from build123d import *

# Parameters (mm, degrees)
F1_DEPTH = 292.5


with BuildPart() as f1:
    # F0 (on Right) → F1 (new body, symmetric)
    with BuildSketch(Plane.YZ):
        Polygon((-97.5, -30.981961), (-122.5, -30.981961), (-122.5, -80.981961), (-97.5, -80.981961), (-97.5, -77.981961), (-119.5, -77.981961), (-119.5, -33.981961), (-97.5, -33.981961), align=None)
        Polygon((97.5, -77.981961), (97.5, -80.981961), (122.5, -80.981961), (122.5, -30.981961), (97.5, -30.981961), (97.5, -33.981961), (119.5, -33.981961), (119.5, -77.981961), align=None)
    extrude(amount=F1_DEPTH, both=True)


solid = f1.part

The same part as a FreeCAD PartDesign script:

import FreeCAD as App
import Part
import Sketcher

V = App.Vector


def add_polygon(sketch, points):
    """Adds a closed chain of lines whose ends are joined by coincident constraints."""
    first, n = sketch.GeometryCount, len(points)
    for a, b in zip(points, points[1:] + points[:1]):
        sketch.addGeometry(Part.LineSegment(App.Vector(*a, 0), App.Vector(*b, 0)), False)
    for i in range(n):
        sketch.addConstraint(Sketcher.Constraint("Coincident", first + i, 2, first + (i + 1) % n, 1))

doc = App.newDocument("Part")
params = doc.addObject("Spreadsheet::Sheet", "Params")
for row, (alias, value) in enumerate([
    ("sketch1_width", "25 mm"),
    ("sketch1_width2", "22 mm"),
    ("sketch1_height", "50 mm"),
    ("sketch1_height2", "3 mm"),
    ("pad1_length", "585 mm"),
], start=1):
    params.set(f"A{row}", alias)
    params.set(f"B{row}", "=" + value)
    params.setAlias(f"B{row}", alias)

body = doc.addObject("PartDesign::Body", "Body")
body.AllowCompound = True

sketch1 = body.newObject("Sketcher::SketchObject", "Sketch")
sketch1.AttachmentSupport = (doc.getObject("YZ_Plane"), [""])
sketch1.MapMode = "FlatFace"
add_polygon(sketch1, [(-97.5, -31), (-122.5, -31), (-122.5, -81), (-97.5, -81), (-97.5, -78), (-119.5, -78), (-119.5, -34), (-97.5, -34)])
add_polygon(sketch1, [(97.5, -78), (97.5, -81), (122.5, -81), (122.5, -31), (97.5, -31), (97.5, -34), (119.5, -34), (119.5, -78)])
sketch1.addConstraint(Sketcher.Constraint("Horizontal", 0))
sketch1.addConstraint(Sketcher.Constraint("Vertical", 1))
sketch1.addConstraint(Sketcher.Constraint("Horizontal", 2))
sketch1.addConstraint(Sketcher.Constraint("Vertical", 3))
sketch1.addConstraint(Sketcher.Constraint("Horizontal", 4))
sketch1.addConstraint(Sketcher.Constraint("Vertical", 5))
sketch1.addConstraint(Sketcher.Constraint("Horizontal", 6))
sketch1.addConstraint(Sketcher.Constraint("Vertical", 7))
sketch1.addConstraint(Sketcher.Constraint("Vertical", 8))
sketch1.addConstraint(Sketcher.Constraint("Horizontal", 9))
sketch1.addConstraint(Sketcher.Constraint("Vertical", 10))
sketch1.addConstraint(Sketcher.Constraint("Horizontal", 11))
sketch1.addConstraint(Sketcher.Constraint("Vertical", 12))
sketch1.addConstraint(Sketcher.Constraint("Horizontal", 13))
sketch1.addConstraint(Sketcher.Constraint("Vertical", 14))
sketch1.addConstraint(Sketcher.Constraint("Horizontal", 15))
sketch1.addConstraint(Sketcher.Constraint("Symmetric", 2, 2, 8, 2, -2))
sketch1.addConstraint(Sketcher.Constraint("Symmetric", 0, 2, 10, 2, -2))
sketch1.addConstraint(Sketcher.Constraint("Symmetric", 6, 2, 12, 2, -2))
sketch1.addConstraint(Sketcher.Constraint("Symmetric", 4, 2, 14, 2, -2))
sketch1.addConstraint(Sketcher.Constraint("Vertical", 3, 2, 6, 2))
sketch1.addConstraint(Sketcher.Constraint("Equal", 3, 7))
sketch1.addConstraint(Sketcher.Constraint("DistanceX", 0, 2, 0, 1, 25.0))
sketch1.addConstraint(Sketcher.Constraint("DistanceX", 4, 2, 4, 1, 22.0))
sketch1.addConstraint(Sketcher.Constraint("DistanceY", 1, 2, 1, 1, 50.0))
sketch1.addConstraint(Sketcher.Constraint("DistanceY", 3, 1, 3, 2, 3.0))
sketch1.addConstraint(Sketcher.Constraint("DistanceX", 2, 2, 8, 2, 195.0))
sketch1.addConstraint(Sketcher.Constraint("DistanceY", 0, 2, -1, 1, 30.981961))
sketch1.setExpression("Constraints[38]", "Params.sketch1_width")
sketch1.setExpression("Constraints[39]", "Params.sketch1_width2")
sketch1.setExpression("Constraints[40]", "Params.sketch1_height")
sketch1.setExpression("Constraints[41]", "Params.sketch1_height2")
pad1 = body.newObject("PartDesign::Pad", "Pad")
pad1.Profile = sketch1
pad1.setExpression("Length", "Params.pad1_length")
pad1.Midplane = True

doc.recompute()
